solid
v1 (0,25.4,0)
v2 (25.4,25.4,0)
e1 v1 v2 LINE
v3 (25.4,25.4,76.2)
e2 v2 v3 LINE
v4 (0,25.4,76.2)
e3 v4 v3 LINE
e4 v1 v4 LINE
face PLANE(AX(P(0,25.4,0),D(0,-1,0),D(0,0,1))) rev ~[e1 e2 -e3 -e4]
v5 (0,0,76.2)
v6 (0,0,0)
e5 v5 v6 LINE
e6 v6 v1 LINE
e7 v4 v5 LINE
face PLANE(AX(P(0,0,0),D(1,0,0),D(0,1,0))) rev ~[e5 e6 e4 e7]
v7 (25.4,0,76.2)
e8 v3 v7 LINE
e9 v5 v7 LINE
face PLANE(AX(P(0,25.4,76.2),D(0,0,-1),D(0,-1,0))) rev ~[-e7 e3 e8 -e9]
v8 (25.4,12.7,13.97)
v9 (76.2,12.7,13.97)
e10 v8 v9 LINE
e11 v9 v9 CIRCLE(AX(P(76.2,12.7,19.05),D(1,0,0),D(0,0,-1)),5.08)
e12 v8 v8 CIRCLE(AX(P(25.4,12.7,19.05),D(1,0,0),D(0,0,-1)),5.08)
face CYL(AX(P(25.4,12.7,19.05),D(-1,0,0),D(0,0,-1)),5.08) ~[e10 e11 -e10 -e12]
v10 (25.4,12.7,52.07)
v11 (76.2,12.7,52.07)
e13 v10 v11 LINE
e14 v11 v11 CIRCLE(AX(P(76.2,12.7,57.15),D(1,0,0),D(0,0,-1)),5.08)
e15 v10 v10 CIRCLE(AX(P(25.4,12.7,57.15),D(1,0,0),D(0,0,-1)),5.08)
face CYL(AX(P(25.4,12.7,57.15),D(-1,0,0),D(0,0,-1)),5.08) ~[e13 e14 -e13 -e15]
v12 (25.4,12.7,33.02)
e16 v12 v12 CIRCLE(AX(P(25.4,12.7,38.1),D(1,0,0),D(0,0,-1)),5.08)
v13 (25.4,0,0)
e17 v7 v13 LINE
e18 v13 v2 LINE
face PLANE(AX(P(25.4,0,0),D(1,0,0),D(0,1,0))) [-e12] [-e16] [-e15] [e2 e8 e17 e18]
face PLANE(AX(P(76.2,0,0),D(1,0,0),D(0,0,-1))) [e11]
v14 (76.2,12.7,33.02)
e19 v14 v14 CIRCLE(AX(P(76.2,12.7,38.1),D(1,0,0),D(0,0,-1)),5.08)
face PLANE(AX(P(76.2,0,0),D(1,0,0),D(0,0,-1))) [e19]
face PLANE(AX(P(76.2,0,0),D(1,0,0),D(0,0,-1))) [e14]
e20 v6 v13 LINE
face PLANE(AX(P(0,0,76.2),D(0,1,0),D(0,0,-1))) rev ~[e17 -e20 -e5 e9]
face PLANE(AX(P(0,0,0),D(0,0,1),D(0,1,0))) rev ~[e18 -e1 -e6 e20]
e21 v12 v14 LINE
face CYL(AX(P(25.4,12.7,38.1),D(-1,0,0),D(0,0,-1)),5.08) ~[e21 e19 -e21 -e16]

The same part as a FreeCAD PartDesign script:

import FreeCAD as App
import Part
import Sketcher
from FreeCAD import Vector
Q = App.Units.Quantity

doc = App.newDocument("Part")
body = doc.addObject("PartDesign::Body", "Body")

sketch1 = doc.addObject("Sketcher::SketchObject", "Sketch")
body.addObject(sketch1)
sketch1.AttachmentSupport = (doc.YZ_Plane, [""])
sketch1.MapMode = "FlatFace"
sketch1.addGeometry([
    Part.LineSegment(Vector(0, 76.2, 0), Vector(0, 0, 0)),
    Part.LineSegment(Vector(0, 0, 0), Vector(25.4, 0, 0)),
    Part.LineSegment(Vector(25.4, 0, 0), Vector(25.4, 76.2, 0)),
    Part.LineSegment(Vector(25.4, 76.2, 0), Vector(0, 76.2, 0)),
], False)
sketch1.addConstraint([
    Sketcher.Constraint("Coincident", 0, 2, 1, 1),
    Sketcher.Constraint("Coincident", 1, 2, 2, 1),
    Sketcher.Constraint("Coincident", 2, 2, 3, 1),
    Sketcher.Constraint("Coincident", 3, 2, 0, 1),
    Sketcher.Constraint("Vertical", 0),
    Sketcher.Constraint("Horizontal", 1),
    Sketcher.Constraint("Vertical", 2),
    Sketcher.Constraint("Horizontal", 3),
    Sketcher.Constraint("Coincident", 0, 2, -1, 1),
    Sketcher.Constraint("DistanceX", 1, 1, 1, 2, Q("1 in")),
    Sketcher.Constraint("DistanceY", 0, 2, 0, 1, Q("3 in")),
])
pad1 = doc.addObject("PartDesign::Pad", "Pad")
body.addObject(pad1)
pad1.Profile = sketch1
pad1.Length = Q("1 in")

sketch2 = doc.addObject("Sketcher::SketchObject", "Sketch001")
body.addObject(sketch2)
sketch2.AttachmentSupport = (doc.YZ_Plane, [""])
sketch2.MapMode = "FlatFace"
sketch2.AttachmentOffset = App.Placement(Vector(0, 0, 1 * 25.4), App.Rotation())
sketch2.addGeometry([
    Part.Circle(Vector(12.7, 57.15, 0), Vector(0, 0, 1), 5.08),
    Part.Circle(Vector(12.7, 38.1, 0), Vector(0, 0, 1), 5.08),
    Part.Circle(Vector(12.7, 19.05, 0), Vector(0, 0, 1), 5.08),
], False)
sketch2.addConstraint([
    Sketcher.Constraint("Equal", 0, 1),
    Sketcher.Constraint("Equal", 1, 2),
    Sketcher.Constraint("Vertical", 0, 3, 1, 3),
    Sketcher.Constraint("Vertical", 1, 3, 2, 3),
    Sketcher.Constraint("Diameter", 0, Q("0.4 in")),
    Sketcher.Constraint("DistanceX", -1, 1, 0, 3, Q("0.5 in")),
    Sketcher.Constraint("DistanceY", -1, 1, 1, 3, Q("1.5 in")),
    Sketcher.Constraint("DistanceY", 2, 3, 0, 3, Q("1.5 in")),
    Sketcher.Constraint("DistanceY", -1, 1, 2, 3, Q("0.75 in")),
])
pad2 = doc.addObject("PartDesign::Pad", "Pad001")
body.addObject(pad2)
pad2.Profile = sketch2
pad2.Length = Q("2 in")

doc.recompute()
